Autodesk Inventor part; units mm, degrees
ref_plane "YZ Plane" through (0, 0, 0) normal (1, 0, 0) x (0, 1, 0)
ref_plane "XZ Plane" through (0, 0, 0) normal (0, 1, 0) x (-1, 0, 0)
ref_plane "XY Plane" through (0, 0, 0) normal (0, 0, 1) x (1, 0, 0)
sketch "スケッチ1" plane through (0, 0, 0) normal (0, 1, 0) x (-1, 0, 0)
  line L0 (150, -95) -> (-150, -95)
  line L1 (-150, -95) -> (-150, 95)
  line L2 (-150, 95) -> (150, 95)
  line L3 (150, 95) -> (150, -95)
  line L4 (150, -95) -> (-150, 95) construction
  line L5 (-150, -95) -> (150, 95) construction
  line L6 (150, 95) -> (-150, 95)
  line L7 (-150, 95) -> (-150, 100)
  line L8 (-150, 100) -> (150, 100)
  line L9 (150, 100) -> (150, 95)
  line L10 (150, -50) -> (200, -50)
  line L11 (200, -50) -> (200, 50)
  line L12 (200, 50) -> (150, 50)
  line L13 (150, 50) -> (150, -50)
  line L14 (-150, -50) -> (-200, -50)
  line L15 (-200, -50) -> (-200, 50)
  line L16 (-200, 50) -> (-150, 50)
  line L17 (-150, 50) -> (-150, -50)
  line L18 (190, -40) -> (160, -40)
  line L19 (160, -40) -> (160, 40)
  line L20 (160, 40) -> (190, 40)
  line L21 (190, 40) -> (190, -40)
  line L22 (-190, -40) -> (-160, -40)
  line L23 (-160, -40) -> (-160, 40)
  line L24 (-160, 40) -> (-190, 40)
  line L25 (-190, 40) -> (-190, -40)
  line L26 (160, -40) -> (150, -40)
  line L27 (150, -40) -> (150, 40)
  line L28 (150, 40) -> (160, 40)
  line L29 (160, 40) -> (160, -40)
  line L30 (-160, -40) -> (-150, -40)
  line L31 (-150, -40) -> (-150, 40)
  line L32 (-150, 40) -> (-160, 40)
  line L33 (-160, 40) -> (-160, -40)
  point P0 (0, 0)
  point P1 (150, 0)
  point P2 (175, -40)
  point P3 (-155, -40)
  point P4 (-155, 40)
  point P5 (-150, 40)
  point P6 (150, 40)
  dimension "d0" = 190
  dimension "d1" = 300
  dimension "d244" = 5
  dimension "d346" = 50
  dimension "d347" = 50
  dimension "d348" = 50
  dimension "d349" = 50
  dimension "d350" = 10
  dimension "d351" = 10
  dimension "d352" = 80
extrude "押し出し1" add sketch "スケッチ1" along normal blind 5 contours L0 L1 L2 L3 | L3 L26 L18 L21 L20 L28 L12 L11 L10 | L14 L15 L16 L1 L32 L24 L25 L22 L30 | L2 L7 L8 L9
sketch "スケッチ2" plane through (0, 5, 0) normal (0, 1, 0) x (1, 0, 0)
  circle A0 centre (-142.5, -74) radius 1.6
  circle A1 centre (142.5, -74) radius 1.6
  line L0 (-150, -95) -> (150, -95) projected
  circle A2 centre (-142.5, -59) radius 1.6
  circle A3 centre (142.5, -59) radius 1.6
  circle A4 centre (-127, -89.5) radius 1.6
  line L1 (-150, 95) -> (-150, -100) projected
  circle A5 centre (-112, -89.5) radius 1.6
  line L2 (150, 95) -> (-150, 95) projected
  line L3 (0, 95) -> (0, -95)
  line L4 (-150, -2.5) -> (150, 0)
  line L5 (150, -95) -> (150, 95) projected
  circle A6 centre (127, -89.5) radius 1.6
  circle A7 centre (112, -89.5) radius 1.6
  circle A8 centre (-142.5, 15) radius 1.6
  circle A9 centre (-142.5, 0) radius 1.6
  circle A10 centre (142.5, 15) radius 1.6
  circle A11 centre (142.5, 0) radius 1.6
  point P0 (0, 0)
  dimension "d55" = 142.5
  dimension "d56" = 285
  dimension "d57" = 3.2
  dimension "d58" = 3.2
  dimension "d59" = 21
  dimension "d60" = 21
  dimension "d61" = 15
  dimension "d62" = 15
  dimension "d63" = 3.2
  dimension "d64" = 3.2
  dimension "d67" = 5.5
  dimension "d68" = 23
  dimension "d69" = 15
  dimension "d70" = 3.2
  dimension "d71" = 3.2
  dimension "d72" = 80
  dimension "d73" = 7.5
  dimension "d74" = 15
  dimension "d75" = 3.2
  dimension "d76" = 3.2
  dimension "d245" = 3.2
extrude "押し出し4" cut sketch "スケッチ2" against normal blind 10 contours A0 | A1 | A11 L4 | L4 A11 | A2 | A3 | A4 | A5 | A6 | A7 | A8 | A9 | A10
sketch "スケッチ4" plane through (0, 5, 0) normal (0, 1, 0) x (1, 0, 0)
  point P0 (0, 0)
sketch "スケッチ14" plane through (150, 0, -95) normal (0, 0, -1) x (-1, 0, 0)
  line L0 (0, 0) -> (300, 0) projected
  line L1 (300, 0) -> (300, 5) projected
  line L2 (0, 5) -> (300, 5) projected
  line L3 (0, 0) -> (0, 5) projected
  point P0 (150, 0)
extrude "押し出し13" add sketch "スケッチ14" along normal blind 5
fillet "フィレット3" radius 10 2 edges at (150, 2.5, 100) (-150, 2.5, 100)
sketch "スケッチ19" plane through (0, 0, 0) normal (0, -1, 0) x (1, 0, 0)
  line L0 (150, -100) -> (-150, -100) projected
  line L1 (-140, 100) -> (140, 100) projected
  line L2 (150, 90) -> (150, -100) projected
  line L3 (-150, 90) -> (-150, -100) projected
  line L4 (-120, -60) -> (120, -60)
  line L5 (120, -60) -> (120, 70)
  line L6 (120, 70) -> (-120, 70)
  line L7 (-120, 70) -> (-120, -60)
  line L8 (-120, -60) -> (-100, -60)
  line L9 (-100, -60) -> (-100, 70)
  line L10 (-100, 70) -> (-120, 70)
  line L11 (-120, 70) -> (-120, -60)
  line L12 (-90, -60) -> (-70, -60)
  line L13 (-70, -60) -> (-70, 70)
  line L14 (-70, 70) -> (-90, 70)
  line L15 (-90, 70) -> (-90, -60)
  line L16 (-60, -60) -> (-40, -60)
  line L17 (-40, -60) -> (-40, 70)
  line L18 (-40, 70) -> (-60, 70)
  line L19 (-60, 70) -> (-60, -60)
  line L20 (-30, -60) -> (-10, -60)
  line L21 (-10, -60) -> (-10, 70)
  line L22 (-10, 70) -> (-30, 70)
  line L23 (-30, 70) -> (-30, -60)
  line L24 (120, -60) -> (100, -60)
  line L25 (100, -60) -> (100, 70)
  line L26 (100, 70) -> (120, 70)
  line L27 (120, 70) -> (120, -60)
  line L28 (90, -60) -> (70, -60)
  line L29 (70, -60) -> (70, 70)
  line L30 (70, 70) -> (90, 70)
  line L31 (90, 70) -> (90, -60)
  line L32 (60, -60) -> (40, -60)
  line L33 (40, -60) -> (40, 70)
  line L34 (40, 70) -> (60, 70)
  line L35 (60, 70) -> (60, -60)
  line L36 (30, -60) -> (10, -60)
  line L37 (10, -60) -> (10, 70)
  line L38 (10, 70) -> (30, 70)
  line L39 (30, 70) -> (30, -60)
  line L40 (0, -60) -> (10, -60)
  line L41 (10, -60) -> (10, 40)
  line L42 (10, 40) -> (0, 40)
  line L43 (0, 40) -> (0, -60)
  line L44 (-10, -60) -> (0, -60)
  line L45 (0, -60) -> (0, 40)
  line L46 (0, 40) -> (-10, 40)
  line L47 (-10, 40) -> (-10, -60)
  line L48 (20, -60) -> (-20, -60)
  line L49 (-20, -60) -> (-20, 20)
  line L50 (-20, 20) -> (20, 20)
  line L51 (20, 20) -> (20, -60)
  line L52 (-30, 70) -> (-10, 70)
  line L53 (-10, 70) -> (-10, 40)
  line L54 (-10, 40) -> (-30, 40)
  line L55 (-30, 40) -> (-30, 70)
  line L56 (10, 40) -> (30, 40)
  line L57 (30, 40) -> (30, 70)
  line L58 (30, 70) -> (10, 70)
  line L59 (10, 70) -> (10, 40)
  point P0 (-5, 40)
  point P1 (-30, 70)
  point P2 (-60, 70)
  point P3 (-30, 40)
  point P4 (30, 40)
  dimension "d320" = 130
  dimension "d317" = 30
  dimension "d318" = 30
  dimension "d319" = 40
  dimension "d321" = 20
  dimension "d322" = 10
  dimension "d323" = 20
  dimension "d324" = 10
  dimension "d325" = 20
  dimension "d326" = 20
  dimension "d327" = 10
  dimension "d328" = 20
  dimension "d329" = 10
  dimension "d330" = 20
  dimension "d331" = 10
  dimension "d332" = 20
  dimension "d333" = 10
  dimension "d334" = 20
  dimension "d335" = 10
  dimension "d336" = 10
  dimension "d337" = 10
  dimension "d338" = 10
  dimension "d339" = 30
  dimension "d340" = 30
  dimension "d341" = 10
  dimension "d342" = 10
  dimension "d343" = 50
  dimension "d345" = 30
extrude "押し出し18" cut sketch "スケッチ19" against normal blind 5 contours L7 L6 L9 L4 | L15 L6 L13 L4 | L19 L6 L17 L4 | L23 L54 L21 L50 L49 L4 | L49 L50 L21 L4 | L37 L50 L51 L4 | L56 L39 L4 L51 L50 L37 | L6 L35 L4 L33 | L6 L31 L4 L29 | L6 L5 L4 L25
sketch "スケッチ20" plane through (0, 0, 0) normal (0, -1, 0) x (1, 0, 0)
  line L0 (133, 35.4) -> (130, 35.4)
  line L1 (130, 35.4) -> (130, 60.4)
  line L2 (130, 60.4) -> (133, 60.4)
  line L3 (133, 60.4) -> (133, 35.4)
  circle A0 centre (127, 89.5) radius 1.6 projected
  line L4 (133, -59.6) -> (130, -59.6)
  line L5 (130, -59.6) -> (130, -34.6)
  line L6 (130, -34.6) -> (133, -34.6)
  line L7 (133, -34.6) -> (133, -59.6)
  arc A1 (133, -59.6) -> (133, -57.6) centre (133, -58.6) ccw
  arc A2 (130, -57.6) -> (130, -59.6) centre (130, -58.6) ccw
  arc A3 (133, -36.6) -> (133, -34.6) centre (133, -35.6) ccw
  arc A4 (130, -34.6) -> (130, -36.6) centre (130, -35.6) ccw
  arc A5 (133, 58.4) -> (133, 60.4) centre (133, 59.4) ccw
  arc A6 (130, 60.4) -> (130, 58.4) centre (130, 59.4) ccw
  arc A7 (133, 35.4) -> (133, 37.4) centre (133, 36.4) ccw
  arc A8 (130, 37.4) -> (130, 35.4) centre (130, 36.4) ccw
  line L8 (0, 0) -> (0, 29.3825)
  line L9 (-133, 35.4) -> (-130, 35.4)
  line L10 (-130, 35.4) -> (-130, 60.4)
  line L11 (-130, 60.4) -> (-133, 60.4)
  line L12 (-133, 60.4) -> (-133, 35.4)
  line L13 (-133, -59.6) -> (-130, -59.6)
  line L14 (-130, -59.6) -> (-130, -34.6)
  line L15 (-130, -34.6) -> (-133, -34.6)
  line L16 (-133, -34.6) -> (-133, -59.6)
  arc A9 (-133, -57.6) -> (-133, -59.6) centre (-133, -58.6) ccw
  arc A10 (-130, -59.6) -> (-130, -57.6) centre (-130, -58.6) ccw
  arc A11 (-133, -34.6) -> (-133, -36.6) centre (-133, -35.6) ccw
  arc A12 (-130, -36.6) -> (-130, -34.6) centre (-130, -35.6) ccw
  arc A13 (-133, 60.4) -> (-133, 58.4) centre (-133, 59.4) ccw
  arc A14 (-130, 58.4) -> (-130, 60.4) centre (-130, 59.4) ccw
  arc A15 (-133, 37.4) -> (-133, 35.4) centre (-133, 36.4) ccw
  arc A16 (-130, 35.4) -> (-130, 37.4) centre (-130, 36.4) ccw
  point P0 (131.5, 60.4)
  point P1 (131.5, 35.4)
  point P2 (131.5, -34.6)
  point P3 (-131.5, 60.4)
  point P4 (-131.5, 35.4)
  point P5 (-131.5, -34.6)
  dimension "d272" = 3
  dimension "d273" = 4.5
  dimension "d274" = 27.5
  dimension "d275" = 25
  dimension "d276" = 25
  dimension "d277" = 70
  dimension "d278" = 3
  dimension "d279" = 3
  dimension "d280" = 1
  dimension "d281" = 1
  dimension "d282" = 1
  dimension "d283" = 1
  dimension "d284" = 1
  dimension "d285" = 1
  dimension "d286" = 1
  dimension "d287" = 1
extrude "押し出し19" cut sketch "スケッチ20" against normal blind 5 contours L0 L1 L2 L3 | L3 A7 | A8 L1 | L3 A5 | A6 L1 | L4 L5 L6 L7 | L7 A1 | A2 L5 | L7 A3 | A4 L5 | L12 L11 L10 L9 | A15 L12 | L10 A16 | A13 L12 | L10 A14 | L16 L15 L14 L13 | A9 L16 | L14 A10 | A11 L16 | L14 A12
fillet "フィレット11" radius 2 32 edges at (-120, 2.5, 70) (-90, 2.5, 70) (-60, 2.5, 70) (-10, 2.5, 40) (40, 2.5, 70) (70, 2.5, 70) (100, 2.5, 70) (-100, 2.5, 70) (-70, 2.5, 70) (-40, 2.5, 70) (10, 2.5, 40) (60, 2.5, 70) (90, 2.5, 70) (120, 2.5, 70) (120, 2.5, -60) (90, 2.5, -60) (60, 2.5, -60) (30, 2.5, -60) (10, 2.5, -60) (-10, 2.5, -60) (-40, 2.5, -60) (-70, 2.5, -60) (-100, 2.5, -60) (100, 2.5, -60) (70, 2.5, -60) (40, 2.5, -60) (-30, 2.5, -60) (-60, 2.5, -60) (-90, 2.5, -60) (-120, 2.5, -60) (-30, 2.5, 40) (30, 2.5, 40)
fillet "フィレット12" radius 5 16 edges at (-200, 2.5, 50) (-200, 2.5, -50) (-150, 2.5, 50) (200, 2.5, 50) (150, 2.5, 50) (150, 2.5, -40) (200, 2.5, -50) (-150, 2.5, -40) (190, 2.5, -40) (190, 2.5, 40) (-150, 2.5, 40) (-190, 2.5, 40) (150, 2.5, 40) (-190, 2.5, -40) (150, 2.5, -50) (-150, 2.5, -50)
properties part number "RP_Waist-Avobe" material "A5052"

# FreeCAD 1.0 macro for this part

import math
import FreeCAD as App
import Part
import Sketcher
Q = App.Units.Quantity


def edges_at(feature, points):
    """Names of the edges that pass closest to the given points."""
    edges = feature.Shape.Edges
    near = lambda p: min(range(len(edges)), key=lambda i: edges[i].distToShape(Part.Vertex(*p))[0])
    return sorted({f"Edge{near(p) + 1}" for p in points})


def add_polygon(sketch, points):
    """Adds a closed chain of lines whose ends are joined by coincident constraints."""
    first, n = sketch.GeometryCount, len(points)
    for a, b in zip(points, points[1:] + points[:1]):
        sketch.addGeometry(Part.LineSegment(App.Vector(*a, 0), App.Vector(*b, 0)), False)
    for i in range(n):
        sketch.addConstraint(Sketcher.Constraint("Coincident", first + i, 2, first + (i + 1) % n, 1))

doc = App.newDocument("Part")
params = doc.addObject("Spreadsheet::Sheet", "Params")
for row, (alias, value) in enumerate([
    ("sketch1_width", "300 mm"),
    ("sketch1_width2", "50 mm"),
    ("sketch1_height", "80 mm"),
    ("sketch1_height2", "45 mm"),
    ("pad1_length", "5 mm"),
    ("sketch2_diameter", "3.2 mm"),
    ("pocket1_length", "10 mm"),
    ("sketch3_width", "300 mm"),
    ("sketch3_height", "5 mm"),
    ("pad2_length", "5 mm"),
    ("fillet_radius", "10 mm"),
    ("sketch4_width", "20 mm"),
    ("sketch4_height", "130 mm"),
    ("pocket2_length", "5 mm"),
    ("sketch5_radius", "1 mm"),
    ("sketch5_width", "3 mm"),
    ("sketch5_height", "21 mm"),
    ("pocket3_length", "5 mm"),
    ("fillet2_radius", "2 mm"),
    ("fillet3_radius", "5 mm"),
], start=1):
    params.set(f"A{row}", alias)
    params.set(f"B{row}", "=" + value)
    params.setAlias(f"B{row}", alias)

body = doc.addObject("PartDesign::Body", "Body")

sketch1 = body.newObject("Sketcher::SketchObject", "Sketch")
sketch1.AttachmentSupport = (doc.getObject("XZ_Plane"), [""])
sketch1.MapMode = "FlatFace"
add_polygon(sketch1, [(150, -95), (-150, -95), (-150, -50), (-200, -50), (-200, 50), (-150, 50), (-150, 100), (150, 100), (150, 50), (200, 50), (200, -50), (150, -50)])
add_polygon(sketch1, [(150, 40), (150, -40), (190, -40), (190, 40)])
add_polygon(sketch1, [(-150, -40), (-150, 40), (-190, 40), (-190, -40)])
sketch1.addConstraint(Sketcher.Constraint("Horizontal", 0))
sketch1.addConstraint(Sketcher.Constraint("Vertical", 1))
sketch1.addConstraint(Sketcher.Constraint("Horizontal", 2))
sketch1.addConstraint(Sketcher.Constraint("Vertical", 3))
sketch1.addConstraint(Sketcher.Constraint("Horizontal", 4))
sketch1.addConstraint(Sketcher.Constraint("Vertical", 5))
sketch1.addConstraint(Sketcher.Constraint("Horizontal", 6))
sketch1.addConstraint(Sketcher.Constraint("Vertical", 7))
sketch1.addConstraint(Sketcher.Constraint("Horizontal", 8))
sketch1.addConstraint(Sketcher.Constraint("Vertical", 9))
sketch1.addConstraint(Sketcher.Constraint("Horizontal", 10))
sketch1.addConstraint(Sketcher.Constraint("Vertical", 11))
sketch1.addConstraint(Sketcher.Constraint("Vertical", 12))
sketch1.addConstraint(Sketcher.Constraint("Horizontal", 13))
sketch1.addConstraint(Sketcher.Constraint("Vertical", 14))
sketch1.addConstraint(Sketcher.Constraint("Horizontal", 15))
sketch1.addConstraint(Sketcher.Constraint("Vertical", 16))
sketch1.addConstraint(Sketcher.Constraint("Horizontal", 17))
sketch1.addConstraint(Sketcher.Constraint("Vertical", 18))
sketch1.addConstraint(Sketcher.Constraint("Horizontal", 19))
sketch1.addConstraint(Sketcher.Constraint("Symmetric", 1, 2, 7, 2, -1, 1))
sketch1.addConstraint(Sketcher.Constraint("Symmetric", 3, 2, 9, 2, -1, 1))
sketch1.addConstraint(Sketcher.Constraint("Symmetric", 12, 2, 16, 2, -1, 1))
sketch1.addConstraint(Sketcher.Constraint("Symmetric", 14, 2, 18, 2, -1, 1))
sketch1.addConstraint(Sketcher.Constraint("Symmetric", 4, 2, 7, 2, -2))
sketch1.addConstraint(Sketcher.Constraint("Horizontal", 15, 2, 16, 2))
sketch1.addConstraint(Sketcher.Constraint("Vertical", 7, 2, 10, 2))
sketch1.addConstraint(Sketcher.Constraint("Vertical", 11, 2, 12, 2))
sketch1.addConstraint(Sketcher.Constraint("Equal", 10, 5))
sketch1.addConstraint(Sketcher.Constraint("DistanceX", 0, 2, 0, 1, Q("300 mm")))
sketch1.addConstraint(Sketcher.Constraint("DistanceX", 2, 2, 2, 1, Q("50 mm")))
sketch1.addConstraint(Sketcher.Constraint("DistanceY", 12, 2, 12, 1, Q("80 mm")))
sketch1.addConstraint(Sketcher.Constraint("DistanceY", 1, 2, -1, 1, Q("50 mm")))
sketch1.addConstraint(Sketcher.Constraint("DistanceX", -1, 1, 13, 2, Q("190 mm")))
sketch1.addConstraint(Sketcher.Constraint("DistanceY", 1, 1, 1, 2, Q("45 mm")))
sketch1.setExpression("Constraints[49]", "Params.sketch1_width")
sketch1.setExpression("Constraints[50]", "Params.sketch1_width2")
sketch1.setExpression("Constraints[51]", "Params.sketch1_height")
sketch1.setExpression("Constraints[54]", "Params.sketch1_height2")
pad1 = body.newObject("PartDesign::Pad", "Pad")
pad1.Profile = sketch1
pad1.setExpression("Length", "Params.pad1_length")
pad1.Reversed = True

sketch2 = body.newObject("Sketcher::SketchObject", "Sketch001")
sketch2.AttachmentSupport = (doc.getObject("XZ_Plane"), [""])
sketch2.MapMode = "FlatFace"
sketch2.AttachmentOffset = App.Placement(App.Vector(0, 0, -5), App.Rotation())
sketch2.addGeometry(Part.Circle(App.Vector(-142.5, 74, 0), App.Vector(0, 0, 1), 1.6), False)
sketch2.addGeometry(Part.Circle(App.Vector(142.5, 74, 0), App.Vector(0, 0, 1), 1.6), False)
sketch2.addGeometry(Part.Circle(App.Vector(142.5, 0, 0), App.Vector(0, 0, 1), 1.6), False)
sketch2.addGeometry(Part.Circle(App.Vector(-142.5, 59, 0), App.Vector(0, 0, 1), 1.6), False)
sketch2.addGeometry(Part.Circle(App.Vector(142.5, 59, 0), App.Vector(0, 0, 1), 1.6), False)
sketch2.addGeometry(Part.Circle(App.Vector(-127, 89.5, 0), App.Vector(0, 0, 1), 1.6), False)
sketch2.addGeometry(Part.Circle(App.Vector(-112, 89.5, 0), App.Vector(0, 0, 1), 1.6), False)
sketch2.addGeometry(Part.Circle(App.Vector(127, 89.5, 0), App.Vector(0, 0, 1), 1.6), False)
sketch2.addGeometry(Part.Circle(App.Vector(112, 89.5, 0), App.Vector(0, 0, 1), 1.6), False)
sketch2.addGeometry(Part.Circle(App.Vector(-142.5, -15, 0), App.Vector(0, 0, 1), 1.6), False)
sketch2.addGeometry(Part.Circle(App.Vector(-142.5, 0, 0), App.Vector(0, 0, 1), 1.6), False)
sketch2.addGeometry(Part.Circle(App.Vector(142.5, -15, 0), App.Vector(0, 0, 1), 1.6), False)
sketch2.addConstraint(Sketcher.Constraint("Equal", 0, 1))
sketch2.addConstraint(Sketcher.Constraint("Equal", 1, 2))
sketch2.addConstraint(Sketcher.Constraint("Equal", 2, 3))
sketch2.addConstraint(Sketcher.Constraint("Equal", 3, 4))
sketch2.addConstraint(Sketcher.Constraint("Equal", 4, 5))
sketch2.addConstraint(Sketcher.Constraint("Equal", 5, 6))
sketch2.addConstraint(Sketcher.Constraint("Equal", 6, 7))
sketch2.addConstraint(Sketcher.Constraint("Equal", 7, 8))
sketch2.addConstraint(Sketcher.Constraint("Equal", 8, 9))
sketch2.addConstraint(Sketcher.Constraint("Equal", 9, 10))
sketch2.addConstraint(Sketcher.Constraint("Equal", 10, 11))
sketch2.addConstraint(Sketcher.Constraint("Symmetric", 2, 3, 10, 3, -1, 1))
sketch2.addConstraint(Sketcher.Constraint("Symmetric", 0, 3, 1, 3, -2))
sketch2.addConstraint(Sketcher.Constraint("Symmetric", 3, 3, 4, 3, -2))
sketch2.addConstraint(Sketcher.Constraint("Symmetric", 5, 3, 7, 3, -2))
sketch2.addConstraint(Sketcher.Constraint("Symmetric", 6, 3, 8, 3, -2))
sketch2.addConstraint(Sketcher.Constraint("Symmetric", 9, 3, 11, 3, -2))
sketch2.addConstraint(Sketcher.Constraint("PointOnObject", 2, 3, -1))
sketch2.addConstraint(Sketcher.Constraint("Horizontal", 5, 3, 6, 3))
sketch2.addConstraint(Sketcher.Constraint("Vertical", 1, 3, 2, 3))
sketch2.addConstraint(Sketcher.Constraint("Vertical", 0, 3, 3, 3))
sketch2.addConstraint(Sketcher.Constraint("Vertical", 3, 3, 9, 3))
sketch2.addConstraint(Sketcher.Constraint("Diameter", 0, Q("3.2 mm")))
sketch2.addConstraint(Sketcher.Constraint("DistanceY", 9, 3, -1, 1, Q("15 mm")))
sketch2.addConstraint(Sketcher.Constraint("DistanceX", 0, 3, 1, 3, Q("285 mm")))
sketch2.addConstraint(Sketcher.Constraint("DistanceY", 3, 3, 0, 3, Q("15 mm")))
sketch2.addConstraint(Sketcher.Constraint("DistanceX", 5, 3, 6, 3, Q("15 mm")))
sketch2.addConstraint(Sketcher.Constraint("DistanceY", -1, 1, 0, 3, Q("74 mm")))
sketch2.addConstraint(Sketcher.Constraint("DistanceX", 5, 3, -1, 1, Q("127 mm")))
sketch2.addConstraint(Sketcher.Constraint("DistanceY", -1, 1, 5, 3, Q("89.5 mm")))
sketch2.setExpression("Constraints[22]", "Params.sketch2_diameter")
pocket1 = body.newObject("PartDesign::Pocket", "Pocket")
pocket1.Profile = sketch2
pocket1.setExpression("Length", "Params.pocket1_length")
pocket1.Reversed = True

sketch3 = body.newObject("Sketcher::SketchObject", "Sketch002")
sketch3.AttachmentSupport = (doc.getObject("XY_Plane"), [""])
sketch3.MapMode = "FlatFace"
sketch3.AttachmentOffset = App.Placement(App.Vector(0, 0, -95), App.Rotation())
add_polygon(sketch3, [(150, 5), (150, 0), (-150, 0), (-150, 5)])
sketch3.addConstraint(Sketcher.Constraint("Vertical", 0))
sketch3.addConstraint(Sketcher.Constraint("Horizontal", 1))
sketch3.addConstraint(Sketcher.Constraint("Vertical", 2))
sketch3.addConstraint(Sketcher.Constraint("Horizontal", 3))
sketch3.addConstraint(Sketcher.Constraint("Symmetric", 0, 2, 1, 2, -1, 1))
sketch3.addConstraint(Sketcher.Constraint("DistanceX", 1, 2, 1, 1, Q("300 mm")))
sketch3.addConstraint(Sketcher.Constraint("DistanceY", 0, 2, 0, 1, Q("5 mm")))
sketch3.setExpression("Constraints[9]", "Params.sketch3_width")
sketch3.setExpression("Constraints[10]", "Params.sketch3_height")
pad2 = body.newObject("PartDesign::Pad", "Pad001")
pad2.Profile = sketch3
pad2.setExpression("Length", "Params.pad2_length")
pad2.Reversed = True
doc.recompute()

fillet = body.newObject("PartDesign::Fillet", "Fillet")
fillet.Base = (pad2, edges_at(pad2, [(150, 2.5, 100), (-150, 2.5, 100)]))
fillet.setExpression("Radius", "Params.fillet_radius")

sketch4 = body.newObject("Sketcher::SketchObject", "Sketch003")
sketch4.AttachmentSupport = (doc.getObject("XZ_Plane"), [""])
sketch4.MapMode = "FlatFace"
add_polygon(sketch4, [(-120, 70), (-120, -60), (-100, -60), (-100, 70)])
add_polygon(sketch4, [(-90, 70), (-90, -60), (-70, -60), (-70, 70)])
add_polygon(sketch4, [(-60, 70), (-60, -60), (-40, -60), (-40, 70)])
add_polygon(sketch4, [(-30, 40), (-30, -60), (-10, -60), (-10, 40)])
add_polygon(sketch4, [(10, -60), (30, -60), (30, 40), (10, 40)])
add_polygon(sketch4, [(60, 70), (40, 70), (40, -60), (60, -60)])
add_polygon(sketch4, [(90, 70), (70, 70), (70, -60), (90, -60)])
add_polygon(sketch4, [(120, 70), (100, 70), (100, -60), (120, -60)])
sketch4.addConstraint(Sketcher.Constraint("Vertical", 0))
sketch4.addConstraint(Sketcher.Constraint("Horizontal", 1))
sketch4.addConstraint(Sketcher.Constraint("Vertical", 2))
sketch4.addConstraint(Sketcher.Constraint("Horizontal", 3))
sketch4.addConstraint(Sketcher.Constraint("Vertical", 4))
sketch4.addConstraint(Sketcher.Constraint("Horizontal", 5))
sketch4.addConstraint(Sketcher.Constraint("Vertical", 6))
sketch4.addConstraint(Sketcher.Constraint("Horizontal", 7))
sketch4.addConstraint(Sketcher.Constraint("Vertical", 8))
sketch4.addConstraint(Sketcher.Constraint("Horizontal", 9))
sketch4.addConstraint(Sketcher.Constraint("Vertical", 10))
sketch4.addConstraint(Sketcher.Constraint("Horizontal", 11))
sketch4.addConstraint(Sketcher.Constraint("Vertical", 12))
sketch4.addConstraint(Sketcher.Constraint("Horizontal", 13))
sketch4.addConstraint(Sketcher.Constraint("Vertical", 14))
sketch4.addConstraint(Sketcher.Constraint("Horizontal", 15))
sketch4.addConstraint(Sketcher.Constraint("Horizontal", 16))
sketch4.addConstraint(Sketcher.Constraint("Vertical", 17))
sketch4.addConstraint(Sketcher.Constraint("Horizontal", 18))
sketch4.addConstraint(Sketcher.Constraint("Vertical", 19))
sketch4.addConstraint(Sketcher.Constraint("Horizontal", 20))
sketch4.addConstraint(Sketcher.Constraint("Vertical", 21))
sketch4.addConstraint(Sketcher.Constraint("Horizontal", 22))
sketch4.addConstraint(Sketcher.Constraint("Vertical", 23))
sketch4.addConstraint(Sketcher.Constraint("Horizontal", 24))
sketch4.addConstraint(Sketcher.Constraint("Vertical", 25))
sketch4.addConstraint(Sketcher.Constraint("Horizontal", 26))
sketch4.addConstraint(Sketcher.Constraint("Vertical", 27))
sketch4.addConstraint(Sketcher.Constraint("Horizontal", 28))
sketch4.addConstraint(Sketcher.Constraint("Vertical", 29))
sketch4.addConstraint(Sketcher.Constraint("Horizontal", 30))
sketch4.addConstraint(Sketcher.Constraint("Vertical", 31))
sketch4.addConstraint(Sketcher.Constraint("Symmetric", 12, 2, 16, 2, -2))
sketch4.addConstraint(Sketcher.Constraint("Symmetric", 14, 2, 18, 2, -2))
sketch4.addConstraint(Sketcher.Constraint("Symmetric", 10, 2, 20, 2, -2))
sketch4.addConstraint(Sketcher.Constraint("Symmetric", 8, 2, 22, 2, -2))
sketch4.addConstraint(Sketcher.Constraint("Symmetric", 6, 2, 24, 2, -2))
sketch4.addConstraint(Sketcher.Constraint("Symmetric", 4, 2, 26, 2, -2))
sketch4.addConstraint(Sketcher.Constraint("Symmetric", 2, 2, 28, 2, -2))
sketch4.addConstraint(Sketcher.Constraint("Symmetric", 0, 2, 30, 2, -2))
sketch4.addConstraint(Sketcher.Constraint("Horizontal", 1, 2, 4, 2))
sketch4.addConstraint(Sketcher.Constraint("Horizontal", 3, 2, 6, 2))
sketch4.addConstraint(Sketcher.Constraint("Horizontal", 5, 2, 8, 2))
sketch4.addConstraint(Sketcher.Constraint("Horizontal", 7, 2, 10, 2))
sketch4.addConstraint(Sketcher.Constraint("Horizontal", 9, 2, 12, 2))
sketch4.addConstraint(Sketcher.Constraint("Equal", 3, 5))
sketch4.addConstraint(Sketcher.Constraint("Equal", 7, 9))
sketch4.addConstraint(Sketcher.Constraint("Equal", 11, 13))
sketch4.addConstraint(Sketcher.Constraint("DistanceX", 1, 1, 1, 2, Q("20 mm")))
sketch4.addConstraint(Sketcher.Constraint("DistanceY", 0, 2, 0, 1, Q("130 mm")))
sketch4.addConstraint(Sketcher.Constraint("DistanceX", 9, 2, -1, 1, Q("40 mm")))
sketch4.addConstraint(Sketcher.Constraint("DistanceX", 12, 2, -1, 1, Q("30 mm")))
sketch4.addConstraint(Sketcher.Constraint("DistanceY", -1, 1, 14, 2, Q("40 mm")))
sketch4.addConstraint(Sketcher.Constraint("DistanceX", 1, 2, 4, 2, Q("10 mm")))
sketch4.addConstraint(Sketcher.Constraint("DistanceX", 5, 2, 8, 2, Q("10 mm")))
sketch4.addConstraint(Sketcher.Constraint("DistanceY", 14, 2, 10, 2, Q("30 mm")))
sketch4.setExpression("Constraints[80]", "Params.sketch4_width")
sketch4.setExpression("Constraints[81]", "Params.sketch4_height")
pocket2 = body.newObject("PartDesign::Pocket", "Pocket001")
pocket2.Profile = sketch4
pocket2.setExpression("Length", "Params.pocket2_length")

sketch5 = body.newObject("Sketcher::SketchObject", "Sketch004")
sketch5.AttachmentSupport = (doc.getObject("XZ_Plane"), [""])
sketch5.MapMode = "FlatFace"
sketch5.addGeometry(Part.LineSegment(App.Vector(130, 35.4, 0), App.Vector(133, 35.4, 0)), False)
sketch5.addGeometry(Part.ArcOfCircle(Part.Circle(App.Vector(133, 36.4, 0), App.Vector(0, 0, 1), 1), math.radians(-90), math.radians(90)), False)
sketch5.addGeometry(Part.LineSegment(App.Vector(133, 37.4, 0), App.Vector(133, 58.4, 0)), False)
sketch5.addGeometry(Part.ArcOfCircle(Part.Circle(App.Vector(133, 59.4, 0), App.Vector(0, 0, 1), 1), math.radians(-90), math.radians(90)), False)
sketch5.addGeometry(Part.LineSegment(App.Vector(133, 60.4, 0), App.Vector(130, 60.4, 0)), False)
sketch5.addGeometry(Part.ArcOfCircle(Part.Circle(App.Vector(130, 59.4, 0), App.Vector(0, 0, 1), 1), math.radians(90), math.radians(270)), False)
sketch5.addGeometry(Part.LineSegment(App.Vector(130, 58.4, 0), App.Vector(130, 37.4, 0)), False)
sketch5.addGeometry(Part.ArcOfCircle(Part.Circle(App.Vector(130, 36.4, 0), App.Vector(0, 0, 1), 1), math.radians(90), math.radians(270)), False)
sketch5.addGeometry(Part.LineSegment(App.Vector(130, -59.6, 0), App.Vector(133, -59.6, 0)), False)
sketch5.addGeometry(Part.ArcOfCircle(Part.Circle(App.Vector(133, -58.6, 0), App.Vector(0, 0, 1), 1), math.radians(-90), math.radians(90)), False)
sketch5.addGeometry(Part.LineSegment(App.Vector(133, -57.6, 0), App.Vector(133, -36.6, 0)), False)
sketch5.addGeometry(Part.ArcOfCircle(Part.Circle(App.Vector(133, -35.6, 0), App.Vector(0, 0, 1), 1), math.radians(-90), math.radians(90)), False)
sketch5.addGeometry(Part.LineSegment(App.Vector(133, -34.6, 0), App.Vector(130, -34.6, 0)), False)
sketch5.addGeometry(Part.ArcOfCircle(Part.Circle(App.Vector(130, -35.6, 0), App.Vector(0, 0, 1), 1), math.radians(90), math.radians(270)), False)
sketch5.addGeometry(Part.LineSegment(App.Vector(130, -36.6, 0), App.Vector(130, -57.6, 0)), False)
sketch5.addGeometry(Part.ArcOfCircle(Part.Circle(App.Vector(130, -58.6, 0), App.Vector(0, 0, 1), 1), math.radians(90), math.radians(270)), False)
sketch5.addGeometry(Part.LineSegment(App.Vector(-133, 58.4, 0), App.Vector(-133, 37.4, 0)), False)
sketch5.addGeometry(Part.ArcOfCircle(Part.Circle(App.Vector(-133, 36.4, 0), App.Vector(0, 0, 1), 1), math.radians(90), math.radians(270)), False)
sketch5.addGeometry(Part.LineSegment(App.Vector(-133, 35.4, 0), App.Vector(-130, 35.4, 0)), False)
sketch5.addGeometry(Part.ArcOfCircle(Part.Circle(App.Vector(-130, 36.4, 0), App.Vector(0, 0, 1), 1), math.radians(-90), math.radians(90)), False)
sketch5.addGeometry(Part.LineSegment(App.Vector(-130, 37.4, 0), App.Vector(-130, 58.4, 0)), False)
sketch5.addGeometry(Part.ArcOfCircle(Part.Circle(App.Vector(-130, 59.4, 0), App.Vector(0, 0, 1), 1), math.radians(-90), math.radians(90)), False)
sketch5.addGeometry(Part.LineSegment(App.Vector(-130, 60.4, 0), App.Vector(-133, 60.4, 0)), False)
sketch5.addGeometry(Part.ArcOfCircle(Part.Circle(App.Vector(-133, 59.4, 0), App.Vector(0, 0, 1), 1), math.radians(90), math.radians(270)), False)
sketch5.addGeometry(Part.LineSegment(App.Vector(-133, -36.6, 0), App.Vector(-133, -57.6, 0)), False)
sketch5.addGeometry(Part.ArcOfCircle(Part.Circle(App.Vector(-133, -58.6, 0), App.Vector(0, 0, 1), 1), math.radians(90), math.radians(270)), False)
sketch5.addGeometry(Part.LineSegment(App.Vector(-133, -59.6, 0), App.Vector(-130, -59.6, 0)), False)
sketch5.addGeometry(Part.ArcOfCircle(Part.Circle(App.Vector(-130, -58.6, 0), App.Vector(0, 0, 1), 1), math.radians(-90), math.radians(90)), False)
sketch5.addGeometry(Part.LineSegment(App.Vector(-130, -57.6, 0), App.Vector(-130, -36.6, 0)), False)
sketch5.addGeometry(Part.ArcOfCircle(Part.Circle(App.Vector(-130, -35.6, 0), App.Vector(0, 0, 1), 1), math.radians(-90), math.radians(90)), False)
sketch5.addGeometry(Part.LineSegment(App.Vector(-130, -34.6, 0), App.Vector(-133, -34.6, 0)), False)
sketch5.addGeometry(Part.ArcOfCircle(Part.Circle(App.Vector(-133, -35.6, 0), App.Vector(0, 0, 1), 1), math.radians(90), math.radians(270)), False)
sketch5.addConstraint(Sketcher.Constraint("Tangent", 0, 2, 1, 1))
sketch5.addConstraint(Sketcher.Constraint("Coincident", 1, 2, 2, 1))
sketch5.addConstraint(Sketcher.Constraint("Coincident", 2, 2, 3, 1))
sketch5.addConstraint(Sketcher.Constraint("Tangent", 3, 2, 4, 1))
sketch5.addConstraint(Sketcher.Constraint("Tangent", 4, 2, 5, 1))
sketch5.addConstraint(Sketcher.Constraint("Coincident", 5, 2, 6, 1))
sketch5.addConstraint(Sketcher.Constraint("Coincident", 6, 2, 7, 1))
sketch5.addConstraint(Sketcher.Constraint("Tangent", 7, 2, 0, 1))
sketch5.addConstraint(Sketcher.Constraint("Tangent", 8, 2, 9, 1))
sketch5.addConstraint(Sketcher.Constraint("Coincident", 9, 2, 10, 1))
sketch5.addConstraint(Sketcher.Constraint("Coincident", 10, 2, 11, 1))
sketch5.addConstraint(Sketcher.Constraint("Tangent", 11, 2, 12, 1))
sketch5.addConstraint(Sketcher.Constraint("Tangent", 12, 2, 13, 1))
sketch5.addConstraint(Sketcher.Constraint("Coincident", 13, 2, 14, 1))
sketch5.addConstraint(Sketcher.Constraint("Coincident", 14, 2, 15, 1))
sketch5.addConstraint(Sketcher.Constraint("Tangent", 15, 2, 8, 1))
sketch5.addConstraint(Sketcher.Constraint("Coincident", 16, 2, 17, 1))
sketch5.addConstraint(Sketcher.Constraint("Tangent", 17, 2, 18, 1))
sketch5.addConstraint(Sketcher.Constraint("Tangent", 18, 2, 19, 1))
sketch5.addConstraint(Sketcher.Constraint("Coincident", 19, 2, 20, 1))
sketch5.addConstraint(Sketcher.Constraint("Coincident", 20, 2, 21, 1))
sketch5.addConstraint(Sketcher.Constraint("Tangent", 21, 2, 22, 1))
sketch5.addConstraint(Sketcher.Constraint("Tangent", 22, 2, 23, 1))
sketch5.addConstraint(Sketcher.Constraint("Coincident", 23, 2, 16, 1))
sketch5.addConstraint(Sketcher.Constraint("Coincident", 24, 2, 25, 1))
sketch5.addConstraint(Sketcher.Constraint("Tangent", 25, 2, 26, 1))
sketch5.addConstraint(Sketcher.Constraint("Tangent", 26, 2, 27, 1))
sketch5.addConstraint(Sketcher.Constraint("Coincident", 27, 2, 28, 1))
sketch5.addConstraint(Sketcher.Constraint("Coincident", 28, 2, 29, 1))
sketch5.addConstraint(Sketcher.Constraint("Tangent", 29, 2, 30, 1))
sketch5.addConstraint(Sketcher.Constraint("Tangent", 30, 2, 31, 1))
sketch5.addConstraint(Sketcher.Constraint("Coincident", 31, 2, 24, 1))
sketch5.addConstraint(Sketcher.Constraint("Horizontal", 0))
sketch5.addConstraint(Sketcher.Constraint("Vertical", 2))
sketch5.addConstraint(Sketcher.Constraint("Horizontal", 4))
sketch5.addConstraint(Sketcher.Constraint("Vertical", 6))
sketch5.addConstraint(Sketcher.Constraint("Horizontal", 8))
sketch5.addConstraint(Sketcher.Constraint("Vertical", 10))
sketch5.addConstraint(Sketcher.Constraint("Horizontal", 12))
sketch5.addConstraint(Sketcher.Constraint("Vertical", 14))
sketch5.addConstraint(Sketcher.Constraint("Vertical", 16))
sketch5.addConstraint(Sketcher.Constraint("Horizontal", 18))
sketch5.addConstraint(Sketcher.Constraint("Vertical", 20))
sketch5.addConstraint(Sketcher.Constraint("Horizontal", 22))
sketch5.addConstraint(Sketcher.Constraint("Vertical", 24))
sketch5.addConstraint(Sketcher.Constraint("Horizontal", 26))
sketch5.addConstraint(Sketcher.Constraint("Vertical", 28))
sketch5.addConstraint(Sketcher.Constraint("Horizontal", 30))
sketch5.addConstraint(Sketcher.Constraint("Equal", 1, 3))
sketch5.addConstraint(Sketcher.Constraint("Equal", 3, 5))
sketch5.addConstraint(Sketcher.Constraint("Equal", 5, 7))
sketch5.addConstraint(Sketcher.Constraint("Equal", 7, 9))
sketch5.addConstraint(Sketcher.Constraint("Equal", 9, 11))
sketch5.addConstraint(Sketcher.Constraint("Equal", 11, 13))
sketch5.addConstraint(Sketcher.Constraint("Equal", 13, 15))
sketch5.addConstraint(Sketcher.Constraint("Equal", 15, 17))
sketch5.addConstraint(Sketcher.Constraint("Equal", 17, 19))
sketch5.addConstraint(Sketcher.Constraint("Equal", 19, 21))
sketch5.addConstraint(Sketcher.Constraint("Equal", 21, 23))
sketch5.addConstraint(Sketcher.Constraint("Equal", 23, 25))
sketch5.addConstraint(Sketcher.Constraint("Equal", 25, 27))
sketch5.addConstraint(Sketcher.Constraint("Equal", 27, 29))
sketch5.addConstraint(Sketcher.Constraint("Equal", 29, 31))
sketch5.addConstraint(Sketcher.Constraint("Symmetric", 1, 3, 17, 3, -2))
sketch5.addConstraint(Sketcher.Constraint("Symmetric", 5, 3, 21, 3, -2))
sketch5.addConstraint(Sketcher.Constraint("Symmetric", 9, 3, 25, 3, -2))
sketch5.addConstraint(Sketcher.Constraint("Symmetric", 13, 3, 29, 3, -2))
sketch5.addConstraint(Sketcher.Constraint("Vertical", 1, 3, 3, 3))
sketch5.addConstraint(Sketcher.Constraint("Vertical", 5, 3, 7, 3))
sketch5.addConstraint(Sketcher.Constraint("Vertical", 3, 3, 9, 3))
sketch5.addConstraint(Sketcher.Constraint("Vertical", 9, 3, 11, 3))
sketch5.addConstraint(Sketcher.Constraint("Vertical", 7, 3, 13, 3))
sketch5.addConstraint(Sketcher.Constraint("Vertical", 13, 3, 15, 3))
sketch5.addConstraint(Sketcher.Constraint("Vertical", 19, 3, 21, 3))
sketch5.addConstraint(Sketcher.Constraint("Vertical", 17, 3, 23, 3))
sketch5.addConstraint(Sketcher.Constraint("Vertical", 21, 3, 27, 3))
sketch5.addConstraint(Sketcher.Constraint("Vertical", 25, 3, 31, 3))
sketch5.addConstraint(Sketcher.Constraint("Vertical", 0, 2, 1, 2))
sketch5.addConstraint(Sketcher.Constraint("Vertical", 4, 2, 5, 2))
sketch5.addConstraint(Sketcher.Constraint("Vertical", 8, 2, 9, 2))
sketch5.addConstraint(Sketcher.Constraint("Vertical", 12, 2, 13, 2))
sketch5.addConstraint(Sketcher.Constraint("Vertical", 31, 3, 16, 2))
sketch5.addConstraint(Sketcher.Constraint("Vertical", 18, 2, 19, 2))
sketch5.addConstraint(Sketcher.Constraint("Vertical", 23, 2, 24, 2))
sketch5.addConstraint(Sketcher.Constraint("Vertical", 26, 2, 27, 2))
sketch5.addConstraint(Sketcher.Constraint("Equal", 6, 10))
sketch5.addConstraint(Sketcher.Constraint("Radius", 1, Q("1 mm")))
sketch5.addConstraint(Sketcher.Constraint("DistanceX", 0, 1, 0, 2, Q("3 mm")))
sketch5.addConstraint(Sketcher.Constraint("DistanceY", 2, 1, 2, 2, Q("21 mm")))
sketch5.addConstraint(Sketcher.Constraint("DistanceX", -1, 1, 1, 3, Q("133 mm")))
sketch5.addConstraint(Sketcher.Constraint("DistanceY", 9, 3, 1, 3, Q("95 mm")))
sketch5.addConstraint(Sketcher.Constraint("DistanceY", -1, 1, 1, 3, Q("36.4 mm")))
sketch5.setExpression("Constraints[86]", "Params.sketch5_radius")
sketch5.setExpression("Constraints[87]", "Params.sketch5_width")
sketch5.setExpression("Constraints[88]", "Params.sketch5_height")
pocket3 = body.newObject("PartDesign::Pocket", "Pocket002")
pocket3.Profile = sketch5
pocket3.setExpression("Length", "Params.pocket3_length")
doc.recompute()

fillet2 = body.newObject("PartDesign::Fillet", "Fillet001")
fillet2.Base = (pocket3, edges_at(pocket3, [
    (-120, 2.5, 70),
    (-90, 2.5, 70),
    (-60, 2.5, 70),
    (-10, 2.5, 40),
    (40, 2.5, 70),
    (70, 2.5, 70),
    (100, 2.5, 70),
    (-100, 2.5, 70),
    (-70, 2.5, 70),
    (-40, 2.5, 70),
    (10, 2.5, 40),
    (60, 2.5, 70),
    (90, 2.5, 70),
    (120, 2.5, 70),
    (120, 2.5, -60),
    (90, 2.5, -60),
    (60, 2.5, -60),
    (30, 2.5, -60),
    (10, 2.5, -60),
    (-10, 2.5, -60),
    (-40, 2.5, -60),
    (-70, 2.5, -60),
    (-100, 2.5, -60),
    (100, 2.5, -60),
    (70, 2.5, -60),
    (40, 2.5, -60),
    (-30, 2.5, -60),
    (-60, 2.5, -60),
    (-90, 2.5, -60),
    (-120, 2.5, -60),
    (-30, 2.5, 40),
    (30, 2.5, 40),
]))
fillet2.setExpression("Radius", "Params.fillet2_radius")
doc.recompute()

fillet3 = body.newObject("PartDesign::Fillet", "Fillet002")
fillet3.Base = (fillet2, edges_at(fillet2, [
    (-200, 2.5, 50),
    (-200, 2.5, -50),
    (-150, 2.5, 50),
    (200, 2.5, 50),
    (150, 2.5, 50),
    (150, 2.5, -40),
    (200, 2.5, -50),
    (-150, 2.5, -40),
    (190, 2.5, -40),
    (190, 2.5, 40),
    (-150, 2.5, 40),
    (-190, 2.5, 40),
    (150, 2.5, 40),
    (-190, 2.5, -40),
    (150, 2.5, -50),
    (-150, 2.5, -50),
]))
fillet3.setExpression("Radius", "Params.fillet3_radius")

doc.recompute()
